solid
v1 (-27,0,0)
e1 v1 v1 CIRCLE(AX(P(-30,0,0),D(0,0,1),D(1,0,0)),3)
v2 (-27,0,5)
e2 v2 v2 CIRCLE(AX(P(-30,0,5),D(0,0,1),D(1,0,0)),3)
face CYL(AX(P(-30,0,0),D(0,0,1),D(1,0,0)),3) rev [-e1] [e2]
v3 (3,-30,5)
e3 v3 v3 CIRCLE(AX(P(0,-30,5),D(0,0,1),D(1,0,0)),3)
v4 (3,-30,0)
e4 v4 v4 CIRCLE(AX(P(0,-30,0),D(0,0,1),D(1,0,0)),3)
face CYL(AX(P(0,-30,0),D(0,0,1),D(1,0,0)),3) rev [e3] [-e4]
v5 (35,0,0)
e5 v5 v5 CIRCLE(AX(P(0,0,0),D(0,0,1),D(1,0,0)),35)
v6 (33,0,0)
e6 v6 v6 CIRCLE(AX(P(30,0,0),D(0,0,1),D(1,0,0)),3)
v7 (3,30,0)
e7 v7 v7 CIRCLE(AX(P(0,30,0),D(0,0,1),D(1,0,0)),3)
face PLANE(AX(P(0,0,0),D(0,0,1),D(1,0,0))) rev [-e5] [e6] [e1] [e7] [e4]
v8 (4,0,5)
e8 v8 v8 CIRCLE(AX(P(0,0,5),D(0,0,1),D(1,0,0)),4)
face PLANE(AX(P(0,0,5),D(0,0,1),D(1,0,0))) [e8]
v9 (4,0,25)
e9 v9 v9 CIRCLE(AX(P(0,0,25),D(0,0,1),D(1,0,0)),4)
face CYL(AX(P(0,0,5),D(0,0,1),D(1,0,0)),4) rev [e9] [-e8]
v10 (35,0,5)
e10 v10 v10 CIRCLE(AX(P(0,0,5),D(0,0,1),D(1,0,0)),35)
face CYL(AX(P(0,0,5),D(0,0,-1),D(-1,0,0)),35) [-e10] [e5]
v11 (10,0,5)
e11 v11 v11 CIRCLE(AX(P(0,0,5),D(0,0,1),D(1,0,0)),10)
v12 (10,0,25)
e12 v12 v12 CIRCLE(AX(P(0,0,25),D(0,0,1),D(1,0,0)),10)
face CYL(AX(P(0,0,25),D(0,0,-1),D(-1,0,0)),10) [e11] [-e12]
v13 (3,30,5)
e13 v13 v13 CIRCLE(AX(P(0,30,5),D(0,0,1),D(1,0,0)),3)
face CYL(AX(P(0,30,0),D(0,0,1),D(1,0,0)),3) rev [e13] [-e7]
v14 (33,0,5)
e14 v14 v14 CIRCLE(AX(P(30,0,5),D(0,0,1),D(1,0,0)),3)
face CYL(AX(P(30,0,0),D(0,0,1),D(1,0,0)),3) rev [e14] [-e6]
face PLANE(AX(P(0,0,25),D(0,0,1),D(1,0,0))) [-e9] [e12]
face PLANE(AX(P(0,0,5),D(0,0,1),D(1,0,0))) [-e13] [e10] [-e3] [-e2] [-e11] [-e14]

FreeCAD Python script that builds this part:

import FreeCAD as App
import Part
import Sketcher
from FreeCAD import Vector

doc = App.newDocument("Part")
body = doc.addObject("PartDesign::Body", "Body")

# Sketch on XY plane
sketch1 = body.newObject("Sketcher::SketchObject", "Sketch")
sketch1.AttachmentSupport = (doc.getObject("XY_Plane"), [""])
sketch1.MapMode = "FlatFace"
sketch1.addGeometry(Part.Circle(Vector(0, 0, 0), Vector(0, 0, 1), 35), False)
sketch1.addConstraint([
    Sketcher.Constraint("Coincident", 0, 3, -1, 1),
    Sketcher.Constraint("Diameter", 0, 70.0),
])
pad1 = body.newObject("PartDesign::Pad", "Pad")
pad1.Profile = sketch1
pad1.Length = 5

# Sketch on XY plane
sketch2 = body.newObject("Sketcher::SketchObject", "Sketch001")
sketch2.AttachmentSupport = (doc.getObject("XY_Plane"), [""])
sketch2.MapMode = "FlatFace"
sketch2.AttachmentOffset = App.Placement(Vector(0, 0, 5), App.Rotation())
sketch2.addGeometry([
    Part.Circle(Vector(0, 30, 0), Vector(0, 0, 1), 3),
    Part.Circle(Vector(30, 0, 0), Vector(0, 0, 1), 3),
    Part.Circle(Vector(0, -30, 0), Vector(0, 0, 1), 3),
    Part.Circle(Vector(-30, 0, 0), Vector(0, 0, 1), 3),
], False)
sketch2.addConstraint([
    Sketcher.Constraint("Equal", 0, 1),
    Sketcher.Constraint("Equal", 1, 2),
    Sketcher.Constraint("Equal", 2, 3),
    Sketcher.Constraint("Symmetric", 0, 3, 2, 3, -1, 1),
    Sketcher.Constraint("Symmetric", 1, 3, 3, 3, -1, 1),
    Sketcher.Constraint("PointOnObject", 0, 3, -2),
    Sketcher.Constraint("PointOnObject", 1, 3, -1),
    Sketcher.Constraint("Diameter", 0, 6.0),
    Sketcher.Constraint("DistanceY", -1, 1, 0, 3, 30.0),
    Sketcher.Constraint("DistanceX", -1, 1, 1, 3, 30.0),
])
pocket1 = body.newObject("PartDesign::Pocket", "Pocket")
pocket1.Profile = sketch2
pocket1.Length = 5

# Sketch on XY plane
sketch3 = body.newObject("Sketcher::SketchObject", "Sketch002")
sketch3.AttachmentSupport = (doc.getObject("XY_Plane"), [""])
sketch3.MapMode = "FlatFace"
sketch3.AttachmentOffset = App.Placement(Vector(0, 0, 5), App.Rotation())
sketch3.addGeometry(Part.Circle(Vector(0, 0, 0), Vector(0, 0, 1), 10), False)
sketch3.addConstraint([
    Sketcher.Constraint("Coincident", 0, 3, -1, 1),
    Sketcher.Constraint("Diameter", 0, 20.0),
])
pad2 = body.newObject("PartDesign::Pad", "Pad001")
pad2.Profile = sketch3
pad2.Length = 20

# Sketch on XY plane
sketch4 = body.newObject("Sketcher::SketchObject", "Sketch003")
sketch4.AttachmentSupport = (doc.getObject("XY_Plane"), [""])
sketch4.MapMode = "FlatFace"
sketch4.AttachmentOffset = App.Placement(Vector(0, 0, 25), App.Rotation())
sketch4.addGeometry(Part.Circle(Vector(0, 0, 0), Vector(0, 0, 1), 4), False)
sketch4.addConstraint([
    Sketcher.Constraint("Coincident", 0, 3, -1, 1),
    Sketcher.Constraint("Diameter", 0, 8.0),
])
pocket2 = body.newObject("PartDesign::Pocket", "Pocket001")
pocket2.Profile = sketch4
pocket2.Length = 20

doc.recompute()
